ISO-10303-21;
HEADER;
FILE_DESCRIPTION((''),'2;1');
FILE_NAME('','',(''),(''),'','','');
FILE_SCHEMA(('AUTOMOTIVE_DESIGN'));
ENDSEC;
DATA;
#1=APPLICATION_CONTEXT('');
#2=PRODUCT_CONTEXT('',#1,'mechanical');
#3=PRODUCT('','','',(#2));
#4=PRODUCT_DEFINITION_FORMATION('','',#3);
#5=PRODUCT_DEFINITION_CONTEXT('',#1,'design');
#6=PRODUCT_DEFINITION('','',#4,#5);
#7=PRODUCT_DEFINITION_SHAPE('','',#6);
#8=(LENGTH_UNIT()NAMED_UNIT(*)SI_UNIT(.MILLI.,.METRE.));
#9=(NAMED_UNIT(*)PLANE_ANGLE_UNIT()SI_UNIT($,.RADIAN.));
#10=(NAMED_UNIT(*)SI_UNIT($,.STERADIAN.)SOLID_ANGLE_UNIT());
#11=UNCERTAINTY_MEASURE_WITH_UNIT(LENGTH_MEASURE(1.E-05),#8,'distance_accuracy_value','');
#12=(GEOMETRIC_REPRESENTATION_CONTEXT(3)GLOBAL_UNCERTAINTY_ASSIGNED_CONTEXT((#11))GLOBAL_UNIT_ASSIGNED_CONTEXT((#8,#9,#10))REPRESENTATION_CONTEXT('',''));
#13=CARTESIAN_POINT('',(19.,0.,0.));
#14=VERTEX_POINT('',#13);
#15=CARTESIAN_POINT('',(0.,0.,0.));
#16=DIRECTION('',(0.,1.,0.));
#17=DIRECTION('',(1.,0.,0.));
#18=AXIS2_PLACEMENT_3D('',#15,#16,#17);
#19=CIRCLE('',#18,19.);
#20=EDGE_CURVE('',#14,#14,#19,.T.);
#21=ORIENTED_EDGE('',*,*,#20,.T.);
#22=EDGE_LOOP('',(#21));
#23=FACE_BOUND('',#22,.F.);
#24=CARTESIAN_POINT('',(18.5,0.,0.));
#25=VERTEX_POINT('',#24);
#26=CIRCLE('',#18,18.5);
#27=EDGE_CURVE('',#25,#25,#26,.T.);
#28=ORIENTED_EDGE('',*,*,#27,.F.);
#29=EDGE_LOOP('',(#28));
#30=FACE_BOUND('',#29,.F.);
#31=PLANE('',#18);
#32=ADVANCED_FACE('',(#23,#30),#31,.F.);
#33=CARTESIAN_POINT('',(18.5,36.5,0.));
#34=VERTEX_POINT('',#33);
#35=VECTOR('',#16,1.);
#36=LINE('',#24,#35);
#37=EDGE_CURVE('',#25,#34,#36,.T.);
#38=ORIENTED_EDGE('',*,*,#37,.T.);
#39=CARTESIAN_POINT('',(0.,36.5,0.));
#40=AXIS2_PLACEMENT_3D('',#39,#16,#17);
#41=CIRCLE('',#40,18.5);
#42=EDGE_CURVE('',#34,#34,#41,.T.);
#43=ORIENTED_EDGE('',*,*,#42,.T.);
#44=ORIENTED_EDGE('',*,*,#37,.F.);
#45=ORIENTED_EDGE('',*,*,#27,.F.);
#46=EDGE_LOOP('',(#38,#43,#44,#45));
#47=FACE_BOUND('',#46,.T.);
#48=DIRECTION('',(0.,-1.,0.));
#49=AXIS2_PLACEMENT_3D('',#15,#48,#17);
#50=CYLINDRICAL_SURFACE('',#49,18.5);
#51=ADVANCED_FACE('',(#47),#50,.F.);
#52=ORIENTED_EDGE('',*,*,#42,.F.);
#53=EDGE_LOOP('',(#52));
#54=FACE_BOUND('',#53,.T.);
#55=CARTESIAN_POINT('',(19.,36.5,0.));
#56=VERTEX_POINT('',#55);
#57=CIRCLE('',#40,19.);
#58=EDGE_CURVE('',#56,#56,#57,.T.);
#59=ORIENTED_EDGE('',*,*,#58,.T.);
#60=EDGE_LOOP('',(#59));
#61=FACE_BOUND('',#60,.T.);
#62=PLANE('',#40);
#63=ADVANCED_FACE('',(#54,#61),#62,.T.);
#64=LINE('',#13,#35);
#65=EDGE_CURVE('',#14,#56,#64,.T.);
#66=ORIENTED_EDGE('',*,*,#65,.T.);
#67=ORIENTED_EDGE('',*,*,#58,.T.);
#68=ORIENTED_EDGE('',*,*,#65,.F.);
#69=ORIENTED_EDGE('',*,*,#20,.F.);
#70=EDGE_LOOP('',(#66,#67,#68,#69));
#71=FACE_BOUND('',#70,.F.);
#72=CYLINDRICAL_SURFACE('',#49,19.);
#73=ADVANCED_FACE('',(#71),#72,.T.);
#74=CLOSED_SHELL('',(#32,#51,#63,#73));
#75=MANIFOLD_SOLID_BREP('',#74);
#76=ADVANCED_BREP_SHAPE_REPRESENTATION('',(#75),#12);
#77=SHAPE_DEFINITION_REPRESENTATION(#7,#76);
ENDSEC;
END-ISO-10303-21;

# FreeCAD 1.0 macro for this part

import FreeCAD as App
import Part
import Sketcher
from FreeCAD import Vector
Q = App.Units.Quantity

doc = App.newDocument("Part")
body = doc.addObject("PartDesign::Body", "Body")

# Sketch on XZ plane
sketch1 = body.newObject("Sketcher::SketchObject", "Sketch")
sketch1.AttachmentSupport = (doc.getObject("XZ_Plane"), [""])
sketch1.MapMode = "FlatFace"
sketch1.addGeometry(Part.Circle(Vector(0, 0, 0), Vector(0, 0, 1), 19), False)
sketch1.addGeometry(Part.Circle(Vector(0, 0, 0), Vector(0, 0, 1), 18), False)
sketch1.addConstraint(Sketcher.Constraint("Coincident", 0, 3, -1, 1))
sketch1.addConstraint(Sketcher.Constraint("Coincident", 1, 3, -1, 1))
sketch1.addConstraint(Sketcher.Constraint("Diameter", 0, Q("38 mm")))
sketch1.addConstraint(Sketcher.Constraint("Diameter", 1, Q("37 mm")))
pad1 = body.newObject("PartDesign::Pad", "Pad")
pad1.Profile = sketch1
pad1.Length = 36.5
pad1.Reversed = True

doc.recompute()
